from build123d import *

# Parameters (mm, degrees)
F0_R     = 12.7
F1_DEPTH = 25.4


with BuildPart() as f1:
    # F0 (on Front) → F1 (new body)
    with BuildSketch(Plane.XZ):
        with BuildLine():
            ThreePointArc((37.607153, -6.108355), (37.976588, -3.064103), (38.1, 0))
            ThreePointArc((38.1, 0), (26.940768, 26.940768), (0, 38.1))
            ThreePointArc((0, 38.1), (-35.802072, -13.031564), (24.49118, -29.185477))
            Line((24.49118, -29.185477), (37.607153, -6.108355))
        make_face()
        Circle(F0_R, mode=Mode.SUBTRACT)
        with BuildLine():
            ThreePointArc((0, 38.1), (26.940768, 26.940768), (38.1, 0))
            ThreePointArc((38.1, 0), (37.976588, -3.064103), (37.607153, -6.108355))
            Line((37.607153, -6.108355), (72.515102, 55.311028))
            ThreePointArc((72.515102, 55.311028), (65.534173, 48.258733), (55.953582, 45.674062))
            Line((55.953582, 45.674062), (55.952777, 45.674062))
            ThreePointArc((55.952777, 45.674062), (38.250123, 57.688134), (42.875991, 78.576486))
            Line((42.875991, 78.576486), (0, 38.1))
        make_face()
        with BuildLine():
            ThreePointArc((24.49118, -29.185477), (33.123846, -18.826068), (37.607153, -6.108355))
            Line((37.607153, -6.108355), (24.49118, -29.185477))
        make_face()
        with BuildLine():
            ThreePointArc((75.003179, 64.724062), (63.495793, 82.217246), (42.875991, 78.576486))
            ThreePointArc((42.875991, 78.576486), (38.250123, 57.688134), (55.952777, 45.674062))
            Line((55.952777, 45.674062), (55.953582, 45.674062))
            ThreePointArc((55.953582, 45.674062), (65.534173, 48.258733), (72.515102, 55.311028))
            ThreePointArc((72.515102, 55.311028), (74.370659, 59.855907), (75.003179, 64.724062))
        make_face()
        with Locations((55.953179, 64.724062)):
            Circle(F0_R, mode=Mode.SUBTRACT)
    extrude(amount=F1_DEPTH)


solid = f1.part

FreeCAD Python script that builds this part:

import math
import FreeCAD as App
import Part
import Sketcher
from FreeCAD import Vector
Q = App.Units.Quantity

doc = App.newDocument("Part")
body = doc.addObject("PartDesign::Body", "Body")

# Sketch on XZ plane
sketch1 = body.newObject("Sketcher::SketchObject", "Sketch")
sketch1.AttachmentSupport = (doc.getObject("XZ_Plane"), [""])
sketch1.MapMode = "FlatFace"
sketch1.addGeometry([
    Part.ArcOfCircle(Part.Circle(Vector(55.95318, 64.724062, 0), Vector(0, 0, 1), 19.049999), math.radians(-29.611905), math.radians(0.000001)),  # 0
    Part.ArcOfCircle(Part.Circle(Vector(55.953179, 64.724063, 0), Vector(0, 0, 1), 19.05), math.radians(-0.000002), math.radians(133.351055)),  # 1
    Part.LineSegment(Vector(42.875991, 78.576486, 0), Vector(0, 38.1, 0)),  # 2
    Part.ArcOfCircle(Part.Circle(Vector(0, 0, 0), Vector(0, 0, 1), 38.1), math.radians(89.999999), math.radians(310.001909)),  # 3
    Part.ArcOfCircle(Part.Circle(Vector(0.000009, -0.000005, 0), Vector(0, 0, 1), 38.09999), math.radians(-49.998096), math.radians(-9.225714)),  # 4
    Part.LineSegment(Vector(37.607153, -6.108355, 0), Vector(72.515102, 55.311028, 0)),  # 5
    Part.Circle(Vector(0, 0, 0), Vector(0, 0, 1), 12.7),  # 6
    Part.Circle(Vector(55.953179, 64.724062, 0), Vector(0, 0, 1), 12.7),  # 7
], False)
sketch1.addConstraint([
    Sketcher.Constraint("Tangent", 0, 2, 1, 1),
    Sketcher.Constraint("Tangent", 1, 2, 2, 1),
    Sketcher.Constraint("Coincident", 2, 2, 3, 1),
    Sketcher.Constraint("Tangent", 3, 2, 4, 1),
    Sketcher.Constraint("Coincident", 4, 2, 5, 1),
    Sketcher.Constraint("Tangent", 5, 2, 0, 1),
    Sketcher.Constraint("Coincident", 3, 3, -1, 1),
    Sketcher.Constraint("Coincident", 6, 3, -1, 1),
    Sketcher.Constraint("Coincident", 7, 3, 0, 3),
    Sketcher.Constraint("Equal", 0, 1),
    Sketcher.Constraint("Equal", 6, 7),
    Sketcher.Constraint("PointOnObject", 2, 2, -2),
    Sketcher.Constraint("Horizontal", 7, 3, 0, 2),
    Sketcher.Constraint("Diameter", 6, Q("1 in")),
    Sketcher.Constraint("Radius", 3, Q("1.5 in")),
    Sketcher.Constraint("Radius", 0, Q("0.75 in")),
    Sketcher.Constraint("Radius", 4, Q("38.09999 mm")),
    Sketcher.Constraint("DistanceX", -1, 1, 5, 2, Q("72.515102 mm")),
    Sketcher.Constraint("DistanceX", 3, 2, 0, 3, Q("31.462 mm")),
    Sketcher.Constraint("Distance", 2, Q("58.963519 mm")),
    Sketcher.Constraint("Distance", 5, Q("70.646341 mm")),
])
pad1 = body.newObject("PartDesign::Pad", "Pad")
pad1.Profile = sketch1
pad1.Length = Q("1 in")

doc.recompute()
